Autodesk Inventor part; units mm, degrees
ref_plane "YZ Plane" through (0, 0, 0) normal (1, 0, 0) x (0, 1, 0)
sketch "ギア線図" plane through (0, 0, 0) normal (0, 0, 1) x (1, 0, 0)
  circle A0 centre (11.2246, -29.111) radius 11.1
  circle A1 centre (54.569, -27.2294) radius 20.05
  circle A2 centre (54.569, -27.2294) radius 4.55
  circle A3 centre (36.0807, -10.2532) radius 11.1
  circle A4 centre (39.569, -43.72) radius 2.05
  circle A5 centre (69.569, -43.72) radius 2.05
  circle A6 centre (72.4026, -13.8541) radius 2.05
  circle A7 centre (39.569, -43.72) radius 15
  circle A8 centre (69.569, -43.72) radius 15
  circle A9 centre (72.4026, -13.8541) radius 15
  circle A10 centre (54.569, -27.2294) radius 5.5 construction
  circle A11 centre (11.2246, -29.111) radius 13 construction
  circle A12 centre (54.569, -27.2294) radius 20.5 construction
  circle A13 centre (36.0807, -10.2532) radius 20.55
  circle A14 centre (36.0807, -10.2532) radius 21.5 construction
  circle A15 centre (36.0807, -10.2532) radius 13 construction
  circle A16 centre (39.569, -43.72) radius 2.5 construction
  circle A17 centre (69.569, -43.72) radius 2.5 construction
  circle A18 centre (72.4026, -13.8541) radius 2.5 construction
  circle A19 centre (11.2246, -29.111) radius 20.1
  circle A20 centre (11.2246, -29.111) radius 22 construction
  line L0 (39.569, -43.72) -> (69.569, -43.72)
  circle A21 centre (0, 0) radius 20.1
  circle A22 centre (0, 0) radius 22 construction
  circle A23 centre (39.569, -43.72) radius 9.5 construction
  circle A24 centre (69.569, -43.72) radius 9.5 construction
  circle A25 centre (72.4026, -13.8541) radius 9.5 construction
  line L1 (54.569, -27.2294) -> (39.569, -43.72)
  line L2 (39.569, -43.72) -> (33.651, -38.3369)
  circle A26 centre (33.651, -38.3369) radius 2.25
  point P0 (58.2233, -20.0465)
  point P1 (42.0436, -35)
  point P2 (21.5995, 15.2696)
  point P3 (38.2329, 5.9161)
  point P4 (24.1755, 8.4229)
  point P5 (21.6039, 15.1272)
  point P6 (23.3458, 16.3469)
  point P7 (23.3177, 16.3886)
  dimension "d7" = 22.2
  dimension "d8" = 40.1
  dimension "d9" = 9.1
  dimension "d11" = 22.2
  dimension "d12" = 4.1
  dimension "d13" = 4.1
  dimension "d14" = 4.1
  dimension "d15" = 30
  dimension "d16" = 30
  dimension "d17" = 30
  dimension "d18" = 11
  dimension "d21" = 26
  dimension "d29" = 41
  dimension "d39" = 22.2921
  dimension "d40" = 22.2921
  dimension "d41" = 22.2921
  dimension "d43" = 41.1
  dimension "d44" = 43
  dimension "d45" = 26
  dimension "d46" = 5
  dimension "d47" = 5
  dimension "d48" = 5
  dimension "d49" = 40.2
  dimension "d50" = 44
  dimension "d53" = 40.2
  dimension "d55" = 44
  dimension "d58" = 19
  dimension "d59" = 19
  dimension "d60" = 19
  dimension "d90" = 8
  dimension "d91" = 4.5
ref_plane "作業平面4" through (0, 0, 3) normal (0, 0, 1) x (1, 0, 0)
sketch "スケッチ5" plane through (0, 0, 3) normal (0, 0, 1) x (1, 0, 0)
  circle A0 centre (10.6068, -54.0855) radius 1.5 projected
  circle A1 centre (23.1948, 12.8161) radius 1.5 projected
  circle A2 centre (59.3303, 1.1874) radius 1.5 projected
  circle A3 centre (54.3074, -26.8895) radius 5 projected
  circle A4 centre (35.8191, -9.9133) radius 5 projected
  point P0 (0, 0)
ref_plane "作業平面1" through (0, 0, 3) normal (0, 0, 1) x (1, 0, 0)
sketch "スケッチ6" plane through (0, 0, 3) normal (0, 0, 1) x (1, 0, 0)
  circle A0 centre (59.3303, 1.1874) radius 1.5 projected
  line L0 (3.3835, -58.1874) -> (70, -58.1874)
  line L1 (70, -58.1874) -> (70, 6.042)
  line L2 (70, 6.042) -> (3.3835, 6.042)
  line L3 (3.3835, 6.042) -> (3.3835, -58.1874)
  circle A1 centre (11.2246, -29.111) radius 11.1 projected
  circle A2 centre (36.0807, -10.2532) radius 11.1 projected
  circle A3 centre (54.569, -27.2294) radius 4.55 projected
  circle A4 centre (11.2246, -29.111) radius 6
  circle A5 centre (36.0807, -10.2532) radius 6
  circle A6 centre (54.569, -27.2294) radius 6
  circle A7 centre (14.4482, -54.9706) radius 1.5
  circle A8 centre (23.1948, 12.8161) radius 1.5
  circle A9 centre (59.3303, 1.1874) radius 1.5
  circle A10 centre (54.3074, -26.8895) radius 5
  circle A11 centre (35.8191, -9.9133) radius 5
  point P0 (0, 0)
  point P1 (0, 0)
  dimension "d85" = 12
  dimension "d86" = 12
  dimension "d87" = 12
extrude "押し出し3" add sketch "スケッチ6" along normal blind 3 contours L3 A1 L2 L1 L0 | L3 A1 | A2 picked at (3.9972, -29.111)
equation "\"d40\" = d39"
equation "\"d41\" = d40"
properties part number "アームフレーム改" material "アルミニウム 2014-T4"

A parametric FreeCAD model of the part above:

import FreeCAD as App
import Part
import Sketcher

V = App.Vector
Q = App.Units.Quantity


def add_polygon(sketch, points):
    """Adds a closed chain of lines whose ends are joined by coincident constraints."""
    first, n = sketch.GeometryCount, len(points)
    for a, b in zip(points, points[1:] + points[:1]):
        sketch.addGeometry(Part.LineSegment(App.Vector(*a, 0), App.Vector(*b, 0)), False)
    for i in range(n):
        sketch.addConstraint(Sketcher.Constraint("Coincident", first + i, 2, first + (i + 1) % n, 1))

doc = App.newDocument("Part")
body = doc.addObject("PartDesign::Body", "Body")

sketch1 = body.newObject("Sketcher::SketchObject", "Sketch")
sketch1.AttachmentSupport = (doc.getObject("XY_Plane"), [""])
sketch1.MapMode = "FlatFace"
sketch1.AttachmentOffset = App.Placement(V(0, 0, 3), App.Rotation())
add_polygon(sketch1, [(3.4, -58.2), (70, -58.2), (70, 6), (3.4, 6)])
sketch1.addGeometry(Part.Circle(V(14.4, -55, 0), V(0, 0, 1), 1.5), False)
sketch1.addGeometry(Part.Circle(V(54.6, -27.2, 0), V(0, 0, 1), 6), False)
sketch1.addGeometry(Part.Circle(V(59.3, 1.2, 0), V(0, 0, 1), 1.5), False)
sketch1.addGeometry(Part.Circle(V(11.2, -29.1, 0), V(0, 0, 1), 6), False)
sketch1.addGeometry(Part.Circle(V(36.1, -10.3, 0), V(0, 0, 1), 6), False)
sketch1.addConstraint([
    Sketcher.Constraint("Horizontal", 0),
    Sketcher.Constraint("Vertical", 1),
    Sketcher.Constraint("Horizontal", 2),
    Sketcher.Constraint("Vertical", 3),
    Sketcher.Constraint("Equal", 4, 6),
    Sketcher.Constraint("Equal", 5, 7),
    Sketcher.Constraint("Equal", 7, 8),
    Sketcher.Constraint("Diameter", 5, Q("12 mm")),
    Sketcher.Constraint("Diameter", 4, Q("3 mm")),
    Sketcher.Constraint("DistanceX", -1, 1, 0, 2, Q("70 mm")),
    Sketcher.Constraint("DistanceX", 0, 1, 0, 2, Q("66.6165 mm")),
    Sketcher.Constraint("DistanceY", 1, 1, 1, 2, Q("64.2294 mm")),
    Sketcher.Constraint("DistanceX", -1, 1, 5, 3, Q("54.569 mm")),
    Sketcher.Constraint("DistanceY", 7, 3, -1, 1, Q("29.111 mm")),
    Sketcher.Constraint("DistanceY", -1, 1, 1, 2, Q("6.042 mm")),
    Sketcher.Constraint("DistanceX", 4, 3, 6, 3, Q("44.882 mm")),
    Sketcher.Constraint("DistanceY", 4, 3, 6, 3, Q("56.158 mm")),
    Sketcher.Constraint("DistanceX", 7, 3, 8, 3, Q("24.856 mm")),
    Sketcher.Constraint("DistanceY", 0, 2, 5, 3, Q("30.958 mm")),
    Sketcher.Constraint("DistanceX", 2, 2, 7, 3, Q("7.841 mm")),
    Sketcher.Constraint("DistanceX", -1, 1, 4, 3, Q("14.4482 mm")),
    Sketcher.Constraint("DistanceY", 4, 3, -1, 1, Q("54.9706 mm")),
    Sketcher.Constraint("DistanceY", 8, 3, -1, 1, Q("10.2532 mm")),
])
pad1 = body.newObject("PartDesign::Pad", "Pad")
pad1.Profile = sketch1
pad1.Length = 3

doc.recompute()
